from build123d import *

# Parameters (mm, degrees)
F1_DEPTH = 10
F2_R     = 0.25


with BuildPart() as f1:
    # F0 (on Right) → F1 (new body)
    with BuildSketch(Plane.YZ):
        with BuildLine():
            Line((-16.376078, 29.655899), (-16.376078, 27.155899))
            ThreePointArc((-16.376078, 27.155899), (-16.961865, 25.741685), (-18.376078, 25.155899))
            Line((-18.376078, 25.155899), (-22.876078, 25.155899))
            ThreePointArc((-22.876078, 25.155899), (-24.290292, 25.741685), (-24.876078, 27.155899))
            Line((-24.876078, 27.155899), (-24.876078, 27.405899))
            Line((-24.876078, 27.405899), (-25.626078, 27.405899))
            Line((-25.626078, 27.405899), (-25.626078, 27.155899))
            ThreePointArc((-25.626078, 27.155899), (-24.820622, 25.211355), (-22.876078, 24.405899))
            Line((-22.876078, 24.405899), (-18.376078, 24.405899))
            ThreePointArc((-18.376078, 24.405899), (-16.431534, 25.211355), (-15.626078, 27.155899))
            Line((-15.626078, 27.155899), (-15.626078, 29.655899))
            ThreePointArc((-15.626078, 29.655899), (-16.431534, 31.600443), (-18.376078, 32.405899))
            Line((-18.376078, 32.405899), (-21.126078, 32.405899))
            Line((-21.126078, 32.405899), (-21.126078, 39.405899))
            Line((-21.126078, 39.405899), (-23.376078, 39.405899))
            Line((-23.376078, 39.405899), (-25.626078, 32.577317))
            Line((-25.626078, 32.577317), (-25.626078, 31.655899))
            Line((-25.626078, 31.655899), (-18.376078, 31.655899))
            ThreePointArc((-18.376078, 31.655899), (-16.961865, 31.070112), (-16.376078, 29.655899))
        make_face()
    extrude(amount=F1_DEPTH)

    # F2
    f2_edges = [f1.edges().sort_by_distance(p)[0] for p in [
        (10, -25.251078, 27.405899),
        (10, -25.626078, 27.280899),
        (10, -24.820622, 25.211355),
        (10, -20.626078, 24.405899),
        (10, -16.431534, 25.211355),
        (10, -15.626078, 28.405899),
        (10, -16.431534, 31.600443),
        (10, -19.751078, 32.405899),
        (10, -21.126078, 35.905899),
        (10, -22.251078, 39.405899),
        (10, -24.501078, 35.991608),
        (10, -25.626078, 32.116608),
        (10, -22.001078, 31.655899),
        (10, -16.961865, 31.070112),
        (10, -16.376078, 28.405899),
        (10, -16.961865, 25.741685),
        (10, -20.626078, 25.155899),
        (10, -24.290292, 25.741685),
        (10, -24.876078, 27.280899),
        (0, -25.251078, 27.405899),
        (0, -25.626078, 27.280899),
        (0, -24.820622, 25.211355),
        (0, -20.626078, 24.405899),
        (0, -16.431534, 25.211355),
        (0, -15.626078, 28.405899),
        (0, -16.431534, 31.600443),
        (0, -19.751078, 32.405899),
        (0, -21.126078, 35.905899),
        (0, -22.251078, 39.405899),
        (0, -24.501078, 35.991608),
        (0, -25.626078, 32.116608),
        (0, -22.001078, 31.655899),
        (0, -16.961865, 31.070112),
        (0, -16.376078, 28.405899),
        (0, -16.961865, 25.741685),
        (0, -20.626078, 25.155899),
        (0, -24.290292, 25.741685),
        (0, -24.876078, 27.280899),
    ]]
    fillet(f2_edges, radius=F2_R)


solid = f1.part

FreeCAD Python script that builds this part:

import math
import FreeCAD as App
import Part
import Sketcher

V = App.Vector
Q = App.Units.Quantity


def edges_at(feature, points):
    """Names of the edges that pass closest to the given points."""
    edges = feature.Shape.Edges
    near = lambda p: min(range(len(edges)), key=lambda i: edges[i].distToShape(Part.Vertex(*p))[0])
    return sorted({f"Edge{near(p) + 1}" for p in points})

doc = App.newDocument("Part")
body = doc.addObject("PartDesign::Body", "Body")

sketch1 = body.newObject("Sketcher::SketchObject", "Sketch")
sketch1.AttachmentSupport = (doc.getObject("YZ_Plane"), [""])
sketch1.MapMode = "FlatFace"
sketch1.addGeometry([
    Part.LineSegment(V(-16.376078, 29.655899, 0), V(-16.376078, 27.155899, 0)),
    Part.ArcOfCircle(Part.Circle(V(-18.376078, 27.155899, 0), V(0, 0, 1), 2), math.radians(-89.999994), math.radians(-0.000006)),
    Part.LineSegment(V(-18.376078, 25.155899, 0), V(-22.876078, 25.155899, 0)),
    Part.ArcOfCircle(Part.Circle(V(-22.876079, 27.155898, 0), V(0, 0, 1), 1.999999), math.radians(179.999957), math.radians(270.000043)),
    Part.LineSegment(V(-24.876078, 27.155899, 0), V(-24.876078, 27.405899, 0)),
    Part.LineSegment(V(-24.876078, 27.405899, 0), V(-25.626078, 27.405899, 0)),
    Part.LineSegment(V(-25.626078, 27.405899, 0), V(-25.626078, 27.155899, 0)),
    Part.ArcOfCircle(Part.Circle(V(-22.876079, 27.155898, 0), V(0, 0, 1), 2.749999), math.radians(179.999975), math.radians(270.000025)),
    Part.LineSegment(V(-22.876078, 24.405899, 0), V(-18.376078, 24.405899, 0)),
    Part.ArcOfCircle(Part.Circle(V(-18.376077, 27.155898, 0), V(0, 0, 1), 2.749999), math.radians(-90.000025), math.radians(0.000025)),
    Part.LineSegment(V(-15.626078, 27.155899, 0), V(-15.626078, 29.655899, 0)),
    Part.ArcOfCircle(Part.Circle(V(-18.376077, 29.6559, 0), V(0, 0, 1), 2.749999), math.radians(-0.000025), math.radians(90.000025)),
    Part.LineSegment(V(-18.376078, 32.405899, 0), V(-21.126078, 32.405899, 0)),
    Part.LineSegment(V(-21.126078, 32.405899, 0), V(-21.126078, 39.405899, 0)),
    Part.LineSegment(V(-21.126078, 39.405899, 0), V(-23.376078, 39.405899, 0)),
    Part.LineSegment(V(-23.376078, 39.405899, 0), V(-25.626078, 32.577317, 0)),
    Part.LineSegment(V(-25.626078, 32.577317, 0), V(-25.626078, 31.655899, 0)),
    Part.LineSegment(V(-25.626078, 31.655899, 0), V(-18.376078, 31.655899, 0)),
    Part.ArcOfCircle(Part.Circle(V(-18.37608, 29.655897, 0), V(0, 0, 1), 2.000002), math.radians(0.000055), math.radians(89.999945)),
], False)
sketch1.addConstraint([
    Sketcher.Constraint("Tangent", 0, 2, 1, 2),
    Sketcher.Constraint("Tangent", 1, 1, 2, 1),
    Sketcher.Constraint("Tangent", 2, 2, 3, 2),
    Sketcher.Constraint("Tangent", 3, 1, 4, 1),
    Sketcher.Constraint("Coincident", 4, 2, 5, 1),
    Sketcher.Constraint("Coincident", 5, 2, 6, 1),
    Sketcher.Constraint("Tangent", 6, 2, 7, 1),
    Sketcher.Constraint("Tangent", 7, 2, 8, 1),
    Sketcher.Constraint("Tangent", 8, 2, 9, 1),
    Sketcher.Constraint("Tangent", 9, 2, 10, 1),
    Sketcher.Constraint("Tangent", 10, 2, 11, 1),
    Sketcher.Constraint("Tangent", 11, 2, 12, 1),
    Sketcher.Constraint("Coincident", 12, 2, 13, 1),
    Sketcher.Constraint("Coincident", 13, 2, 14, 1),
    Sketcher.Constraint("Coincident", 14, 2, 15, 1),
    Sketcher.Constraint("Coincident", 15, 2, 16, 1),
    Sketcher.Constraint("Coincident", 16, 2, 17, 1),
    Sketcher.Constraint("Tangent", 17, 2, 18, 2),
    Sketcher.Constraint("Tangent", 18, 1, 0, 1),
    Sketcher.Constraint("Vertical", 0),
    Sketcher.Constraint("Horizontal", 2),
    Sketcher.Constraint("Vertical", 4),
    Sketcher.Constraint("Horizontal", 5),
    Sketcher.Constraint("Vertical", 6),
    Sketcher.Constraint("Horizontal", 8),
    Sketcher.Constraint("Vertical", 10),
    Sketcher.Constraint("Horizontal", 12),
    Sketcher.Constraint("Vertical", 13),
    Sketcher.Constraint("Horizontal", 14),
    Sketcher.Constraint("Vertical", 16),
    Sketcher.Constraint("Horizontal", 17),
    Sketcher.Constraint("Coincident", 7, 3, 3, 3),
    Sketcher.Constraint("Coincident", 9, 3, 1, 3),
    Sketcher.Constraint("Coincident", 18, 3, 11, 3),
    Sketcher.Constraint("Equal", 1, 3),
    Sketcher.Constraint("Equal", 9, 11),
    Sketcher.Constraint("Vertical", 6, 2, 15, 2),
    Sketcher.Constraint("Radius", 1, Q("2 mm")),
    Sketcher.Constraint("DistanceY", 13, 1, 13, 2, Q("7 mm")),
    Sketcher.Constraint("Radius", 7, Q("2.749999 mm")),
    Sketcher.Constraint("DistanceX", 2, 2, 2, 1, Q("4.5 mm")),
    Sketcher.Constraint("DistanceY", 0, 2, 0, 1, Q("2.5 mm")),
    Sketcher.Constraint("DistanceY", 7, 2, 4, 2, Q("3 mm")),
    Sketcher.Constraint("DistanceX", 14, 2, 11, 2, Q("5 mm")),
    Sketcher.Constraint("DistanceX", 12, 2, 12, 1, Q("2.75 mm")),
    Sketcher.Constraint("DistanceY", -1, 1, 1, 3, Q("27.155899 mm")),
    Sketcher.Constraint("DistanceY", 16, 2, 16, 1, Q("0.921418 mm")),
    Sketcher.Constraint("DistanceX", 1, 3, -1, 1, Q("18.376078 mm")),
])
pad1 = body.newObject("PartDesign::Pad", "Pad")
pad1.Profile = sketch1
pad1.Length = 10
doc.recompute()

fillet = body.newObject("PartDesign::Fillet", "Fillet")
fillet.Base = (pad1, edges_at(pad1, [
    (10, -25.251, 27.406),
    (10, -25.626, 27.281),
    (10, -24.821, 25.211),
    (10, -20.626, 24.406),
    (10, -16.432, 25.211),
    (10, -15.626, 28.406),
    (10, -16.432, 31.6),
    (10, -19.751, 32.406),
    (10, -21.126, 35.906),
    (10, -22.251, 39.406),
    (10, -24.501, 35.992),
    (10, -25.626, 32.117),
    (10, -22.001, 31.656),
    (10, -16.962, 31.07),
    (10, -16.376, 28.406),
    (10, -16.962, 25.742),
    (10, -20.626, 25.156),
    (10, -24.29, 25.742),
    (10, -24.876, 27.281),
    (0, -25.251, 27.406),
    (0, -25.626, 27.281),
    (0, -24.821, 25.211),
    (0, -20.626, 24.406),
    (0, -16.432, 25.211),
    (0, -15.626, 28.406),
    (0, -16.432, 31.6),
    (0, -19.751, 32.406),
    (0, -21.126, 35.906),
    (0, -22.251, 39.406),
    (0, -24.501, 35.992),
    (0, -25.626, 32.117),
    (0, -22.001, 31.656),
    (0, -16.962, 31.07),
    (0, -16.376, 28.406),
    (0, -16.962, 25.742),
    (0, -20.626, 25.156),
    (0, -24.29, 25.742),
    (0, -24.876, 27.281),
]))
fillet.Radius = 0.25

doc.recompute()
